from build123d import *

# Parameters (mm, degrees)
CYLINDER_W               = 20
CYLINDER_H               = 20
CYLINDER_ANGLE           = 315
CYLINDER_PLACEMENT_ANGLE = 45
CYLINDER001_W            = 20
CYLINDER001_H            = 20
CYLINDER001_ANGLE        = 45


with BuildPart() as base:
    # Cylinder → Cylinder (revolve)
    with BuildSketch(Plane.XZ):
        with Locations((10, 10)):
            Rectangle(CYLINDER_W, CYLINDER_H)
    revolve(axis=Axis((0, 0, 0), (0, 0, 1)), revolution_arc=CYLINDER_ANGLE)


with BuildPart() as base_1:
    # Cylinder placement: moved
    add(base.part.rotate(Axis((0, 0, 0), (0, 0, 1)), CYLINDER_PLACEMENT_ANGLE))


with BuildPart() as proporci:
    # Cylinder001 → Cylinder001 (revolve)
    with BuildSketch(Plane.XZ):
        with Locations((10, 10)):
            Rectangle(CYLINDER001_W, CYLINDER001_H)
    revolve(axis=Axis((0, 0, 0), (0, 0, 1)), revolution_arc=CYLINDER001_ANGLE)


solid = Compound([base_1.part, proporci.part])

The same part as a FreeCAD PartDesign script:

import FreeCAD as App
import Part
import Sketcher

V = App.Vector

doc = App.newDocument("Part")
body = doc.addObject("PartDesign::Body", "Body")

sketch1 = body.newObject("Sketcher::SketchObject", "Sketch")
sketch1.AttachmentSupport = (doc.getObject("XZ_Plane"), [""])
sketch1.MapMode = "FlatFace"
sketch1.addGeometry(Part.LineSegment(V(0, 20, 0), V(0, 0, 0)), False)
sketch1.addGeometry(Part.LineSegment(V(0, 0, 0), V(20, 0, 0)), False)
sketch1.addGeometry(Part.LineSegment(V(20, 0, 0), V(20, 20, 0)), False)
sketch1.addGeometry(Part.LineSegment(V(20, 20, 0), V(0, 20, 0)), False)
sketch1.addConstraint(Sketcher.Constraint("Coincident", 0, 2, 1, 1))
sketch1.addConstraint(Sketcher.Constraint("Coincident", 1, 2, 2, 1))
sketch1.addConstraint(Sketcher.Constraint("Coincident", 2, 2, 3, 1))
sketch1.addConstraint(Sketcher.Constraint("Coincident", 3, 2, 0, 1))
sketch1.addConstraint(Sketcher.Constraint("Vertical", 0))
sketch1.addConstraint(Sketcher.Constraint("Horizontal", 1))
sketch1.addConstraint(Sketcher.Constraint("Vertical", 2))
sketch1.addConstraint(Sketcher.Constraint("Horizontal", 3))
sketch1.addConstraint(Sketcher.Constraint("Coincident", 0, 2, -1, 1))
sketch1.addConstraint(Sketcher.Constraint("Equal", 3, 0))
sketch1.addConstraint(Sketcher.Constraint("DistanceX", 1, 1, 1, 2, 20.0))
revolution = body.newObject("PartDesign::Revolution", "Revolution")
revolution.Profile = sketch1
revolution.ReferenceAxis = (sketch1, ["V_Axis"])
revolution.Angle = 315
body2 = doc.addObject("PartDesign::Body", "Body001")
doc.recompute()

body.Placement = App.Placement(V(0, 0, 0), App.Rotation(V(0, 0, 1), 45))
boolean = body2.newObject("PartDesign::Boolean", "Boolean")
boolean.Type = "Fuse"
boolean.addObjects([body])
body3 = doc.addObject("PartDesign::Body", "Body002")

sketch2 = body3.newObject("Sketcher::SketchObject", "Sketch001")
sketch2.AttachmentSupport = (doc.getObject("XZ_Plane002"), [""])
sketch2.MapMode = "FlatFace"
sketch2.addGeometry(Part.LineSegment(V(0, 20, 0), V(0, 0, 0)), False)
sketch2.addGeometry(Part.LineSegment(V(0, 0, 0), V(20, 0, 0)), False)
sketch2.addGeometry(Part.LineSegment(V(20, 0, 0), V(20, 20, 0)), False)
sketch2.addGeometry(Part.LineSegment(V(20, 20, 0), V(0, 20, 0)), False)
sketch2.addConstraint(Sketcher.Constraint("Coincident", 0, 2, 1, 1))
sketch2.addConstraint(Sketcher.Constraint("Coincident", 1, 2, 2, 1))
sketch2.addConstraint(Sketcher.Constraint("Coincident", 2, 2, 3, 1))
sketch2.addConstraint(Sketcher.Constraint("Coincident", 3, 2, 0, 1))
sketch2.addConstraint(Sketcher.Constraint("Vertical", 0))
sketch2.addConstraint(Sketcher.Constraint("Horizontal", 1))
sketch2.addConstraint(Sketcher.Constraint("Vertical", 2))
sketch2.addConstraint(Sketcher.Constraint("Horizontal", 3))
sketch2.addConstraint(Sketcher.Constraint("Coincident", 0, 2, -1, 1))
sketch2.addConstraint(Sketcher.Constraint("Equal", 3, 0))
sketch2.addConstraint(Sketcher.Constraint("DistanceX", 1, 1, 1, 2, 20.0))
revolution2 = body3.newObject("PartDesign::Revolution", "Revolution001")
revolution2.Profile = sketch2
revolution2.ReferenceAxis = (sketch2, ["V_Axis"])
revolution2.Angle = 45

doc.recompute()
